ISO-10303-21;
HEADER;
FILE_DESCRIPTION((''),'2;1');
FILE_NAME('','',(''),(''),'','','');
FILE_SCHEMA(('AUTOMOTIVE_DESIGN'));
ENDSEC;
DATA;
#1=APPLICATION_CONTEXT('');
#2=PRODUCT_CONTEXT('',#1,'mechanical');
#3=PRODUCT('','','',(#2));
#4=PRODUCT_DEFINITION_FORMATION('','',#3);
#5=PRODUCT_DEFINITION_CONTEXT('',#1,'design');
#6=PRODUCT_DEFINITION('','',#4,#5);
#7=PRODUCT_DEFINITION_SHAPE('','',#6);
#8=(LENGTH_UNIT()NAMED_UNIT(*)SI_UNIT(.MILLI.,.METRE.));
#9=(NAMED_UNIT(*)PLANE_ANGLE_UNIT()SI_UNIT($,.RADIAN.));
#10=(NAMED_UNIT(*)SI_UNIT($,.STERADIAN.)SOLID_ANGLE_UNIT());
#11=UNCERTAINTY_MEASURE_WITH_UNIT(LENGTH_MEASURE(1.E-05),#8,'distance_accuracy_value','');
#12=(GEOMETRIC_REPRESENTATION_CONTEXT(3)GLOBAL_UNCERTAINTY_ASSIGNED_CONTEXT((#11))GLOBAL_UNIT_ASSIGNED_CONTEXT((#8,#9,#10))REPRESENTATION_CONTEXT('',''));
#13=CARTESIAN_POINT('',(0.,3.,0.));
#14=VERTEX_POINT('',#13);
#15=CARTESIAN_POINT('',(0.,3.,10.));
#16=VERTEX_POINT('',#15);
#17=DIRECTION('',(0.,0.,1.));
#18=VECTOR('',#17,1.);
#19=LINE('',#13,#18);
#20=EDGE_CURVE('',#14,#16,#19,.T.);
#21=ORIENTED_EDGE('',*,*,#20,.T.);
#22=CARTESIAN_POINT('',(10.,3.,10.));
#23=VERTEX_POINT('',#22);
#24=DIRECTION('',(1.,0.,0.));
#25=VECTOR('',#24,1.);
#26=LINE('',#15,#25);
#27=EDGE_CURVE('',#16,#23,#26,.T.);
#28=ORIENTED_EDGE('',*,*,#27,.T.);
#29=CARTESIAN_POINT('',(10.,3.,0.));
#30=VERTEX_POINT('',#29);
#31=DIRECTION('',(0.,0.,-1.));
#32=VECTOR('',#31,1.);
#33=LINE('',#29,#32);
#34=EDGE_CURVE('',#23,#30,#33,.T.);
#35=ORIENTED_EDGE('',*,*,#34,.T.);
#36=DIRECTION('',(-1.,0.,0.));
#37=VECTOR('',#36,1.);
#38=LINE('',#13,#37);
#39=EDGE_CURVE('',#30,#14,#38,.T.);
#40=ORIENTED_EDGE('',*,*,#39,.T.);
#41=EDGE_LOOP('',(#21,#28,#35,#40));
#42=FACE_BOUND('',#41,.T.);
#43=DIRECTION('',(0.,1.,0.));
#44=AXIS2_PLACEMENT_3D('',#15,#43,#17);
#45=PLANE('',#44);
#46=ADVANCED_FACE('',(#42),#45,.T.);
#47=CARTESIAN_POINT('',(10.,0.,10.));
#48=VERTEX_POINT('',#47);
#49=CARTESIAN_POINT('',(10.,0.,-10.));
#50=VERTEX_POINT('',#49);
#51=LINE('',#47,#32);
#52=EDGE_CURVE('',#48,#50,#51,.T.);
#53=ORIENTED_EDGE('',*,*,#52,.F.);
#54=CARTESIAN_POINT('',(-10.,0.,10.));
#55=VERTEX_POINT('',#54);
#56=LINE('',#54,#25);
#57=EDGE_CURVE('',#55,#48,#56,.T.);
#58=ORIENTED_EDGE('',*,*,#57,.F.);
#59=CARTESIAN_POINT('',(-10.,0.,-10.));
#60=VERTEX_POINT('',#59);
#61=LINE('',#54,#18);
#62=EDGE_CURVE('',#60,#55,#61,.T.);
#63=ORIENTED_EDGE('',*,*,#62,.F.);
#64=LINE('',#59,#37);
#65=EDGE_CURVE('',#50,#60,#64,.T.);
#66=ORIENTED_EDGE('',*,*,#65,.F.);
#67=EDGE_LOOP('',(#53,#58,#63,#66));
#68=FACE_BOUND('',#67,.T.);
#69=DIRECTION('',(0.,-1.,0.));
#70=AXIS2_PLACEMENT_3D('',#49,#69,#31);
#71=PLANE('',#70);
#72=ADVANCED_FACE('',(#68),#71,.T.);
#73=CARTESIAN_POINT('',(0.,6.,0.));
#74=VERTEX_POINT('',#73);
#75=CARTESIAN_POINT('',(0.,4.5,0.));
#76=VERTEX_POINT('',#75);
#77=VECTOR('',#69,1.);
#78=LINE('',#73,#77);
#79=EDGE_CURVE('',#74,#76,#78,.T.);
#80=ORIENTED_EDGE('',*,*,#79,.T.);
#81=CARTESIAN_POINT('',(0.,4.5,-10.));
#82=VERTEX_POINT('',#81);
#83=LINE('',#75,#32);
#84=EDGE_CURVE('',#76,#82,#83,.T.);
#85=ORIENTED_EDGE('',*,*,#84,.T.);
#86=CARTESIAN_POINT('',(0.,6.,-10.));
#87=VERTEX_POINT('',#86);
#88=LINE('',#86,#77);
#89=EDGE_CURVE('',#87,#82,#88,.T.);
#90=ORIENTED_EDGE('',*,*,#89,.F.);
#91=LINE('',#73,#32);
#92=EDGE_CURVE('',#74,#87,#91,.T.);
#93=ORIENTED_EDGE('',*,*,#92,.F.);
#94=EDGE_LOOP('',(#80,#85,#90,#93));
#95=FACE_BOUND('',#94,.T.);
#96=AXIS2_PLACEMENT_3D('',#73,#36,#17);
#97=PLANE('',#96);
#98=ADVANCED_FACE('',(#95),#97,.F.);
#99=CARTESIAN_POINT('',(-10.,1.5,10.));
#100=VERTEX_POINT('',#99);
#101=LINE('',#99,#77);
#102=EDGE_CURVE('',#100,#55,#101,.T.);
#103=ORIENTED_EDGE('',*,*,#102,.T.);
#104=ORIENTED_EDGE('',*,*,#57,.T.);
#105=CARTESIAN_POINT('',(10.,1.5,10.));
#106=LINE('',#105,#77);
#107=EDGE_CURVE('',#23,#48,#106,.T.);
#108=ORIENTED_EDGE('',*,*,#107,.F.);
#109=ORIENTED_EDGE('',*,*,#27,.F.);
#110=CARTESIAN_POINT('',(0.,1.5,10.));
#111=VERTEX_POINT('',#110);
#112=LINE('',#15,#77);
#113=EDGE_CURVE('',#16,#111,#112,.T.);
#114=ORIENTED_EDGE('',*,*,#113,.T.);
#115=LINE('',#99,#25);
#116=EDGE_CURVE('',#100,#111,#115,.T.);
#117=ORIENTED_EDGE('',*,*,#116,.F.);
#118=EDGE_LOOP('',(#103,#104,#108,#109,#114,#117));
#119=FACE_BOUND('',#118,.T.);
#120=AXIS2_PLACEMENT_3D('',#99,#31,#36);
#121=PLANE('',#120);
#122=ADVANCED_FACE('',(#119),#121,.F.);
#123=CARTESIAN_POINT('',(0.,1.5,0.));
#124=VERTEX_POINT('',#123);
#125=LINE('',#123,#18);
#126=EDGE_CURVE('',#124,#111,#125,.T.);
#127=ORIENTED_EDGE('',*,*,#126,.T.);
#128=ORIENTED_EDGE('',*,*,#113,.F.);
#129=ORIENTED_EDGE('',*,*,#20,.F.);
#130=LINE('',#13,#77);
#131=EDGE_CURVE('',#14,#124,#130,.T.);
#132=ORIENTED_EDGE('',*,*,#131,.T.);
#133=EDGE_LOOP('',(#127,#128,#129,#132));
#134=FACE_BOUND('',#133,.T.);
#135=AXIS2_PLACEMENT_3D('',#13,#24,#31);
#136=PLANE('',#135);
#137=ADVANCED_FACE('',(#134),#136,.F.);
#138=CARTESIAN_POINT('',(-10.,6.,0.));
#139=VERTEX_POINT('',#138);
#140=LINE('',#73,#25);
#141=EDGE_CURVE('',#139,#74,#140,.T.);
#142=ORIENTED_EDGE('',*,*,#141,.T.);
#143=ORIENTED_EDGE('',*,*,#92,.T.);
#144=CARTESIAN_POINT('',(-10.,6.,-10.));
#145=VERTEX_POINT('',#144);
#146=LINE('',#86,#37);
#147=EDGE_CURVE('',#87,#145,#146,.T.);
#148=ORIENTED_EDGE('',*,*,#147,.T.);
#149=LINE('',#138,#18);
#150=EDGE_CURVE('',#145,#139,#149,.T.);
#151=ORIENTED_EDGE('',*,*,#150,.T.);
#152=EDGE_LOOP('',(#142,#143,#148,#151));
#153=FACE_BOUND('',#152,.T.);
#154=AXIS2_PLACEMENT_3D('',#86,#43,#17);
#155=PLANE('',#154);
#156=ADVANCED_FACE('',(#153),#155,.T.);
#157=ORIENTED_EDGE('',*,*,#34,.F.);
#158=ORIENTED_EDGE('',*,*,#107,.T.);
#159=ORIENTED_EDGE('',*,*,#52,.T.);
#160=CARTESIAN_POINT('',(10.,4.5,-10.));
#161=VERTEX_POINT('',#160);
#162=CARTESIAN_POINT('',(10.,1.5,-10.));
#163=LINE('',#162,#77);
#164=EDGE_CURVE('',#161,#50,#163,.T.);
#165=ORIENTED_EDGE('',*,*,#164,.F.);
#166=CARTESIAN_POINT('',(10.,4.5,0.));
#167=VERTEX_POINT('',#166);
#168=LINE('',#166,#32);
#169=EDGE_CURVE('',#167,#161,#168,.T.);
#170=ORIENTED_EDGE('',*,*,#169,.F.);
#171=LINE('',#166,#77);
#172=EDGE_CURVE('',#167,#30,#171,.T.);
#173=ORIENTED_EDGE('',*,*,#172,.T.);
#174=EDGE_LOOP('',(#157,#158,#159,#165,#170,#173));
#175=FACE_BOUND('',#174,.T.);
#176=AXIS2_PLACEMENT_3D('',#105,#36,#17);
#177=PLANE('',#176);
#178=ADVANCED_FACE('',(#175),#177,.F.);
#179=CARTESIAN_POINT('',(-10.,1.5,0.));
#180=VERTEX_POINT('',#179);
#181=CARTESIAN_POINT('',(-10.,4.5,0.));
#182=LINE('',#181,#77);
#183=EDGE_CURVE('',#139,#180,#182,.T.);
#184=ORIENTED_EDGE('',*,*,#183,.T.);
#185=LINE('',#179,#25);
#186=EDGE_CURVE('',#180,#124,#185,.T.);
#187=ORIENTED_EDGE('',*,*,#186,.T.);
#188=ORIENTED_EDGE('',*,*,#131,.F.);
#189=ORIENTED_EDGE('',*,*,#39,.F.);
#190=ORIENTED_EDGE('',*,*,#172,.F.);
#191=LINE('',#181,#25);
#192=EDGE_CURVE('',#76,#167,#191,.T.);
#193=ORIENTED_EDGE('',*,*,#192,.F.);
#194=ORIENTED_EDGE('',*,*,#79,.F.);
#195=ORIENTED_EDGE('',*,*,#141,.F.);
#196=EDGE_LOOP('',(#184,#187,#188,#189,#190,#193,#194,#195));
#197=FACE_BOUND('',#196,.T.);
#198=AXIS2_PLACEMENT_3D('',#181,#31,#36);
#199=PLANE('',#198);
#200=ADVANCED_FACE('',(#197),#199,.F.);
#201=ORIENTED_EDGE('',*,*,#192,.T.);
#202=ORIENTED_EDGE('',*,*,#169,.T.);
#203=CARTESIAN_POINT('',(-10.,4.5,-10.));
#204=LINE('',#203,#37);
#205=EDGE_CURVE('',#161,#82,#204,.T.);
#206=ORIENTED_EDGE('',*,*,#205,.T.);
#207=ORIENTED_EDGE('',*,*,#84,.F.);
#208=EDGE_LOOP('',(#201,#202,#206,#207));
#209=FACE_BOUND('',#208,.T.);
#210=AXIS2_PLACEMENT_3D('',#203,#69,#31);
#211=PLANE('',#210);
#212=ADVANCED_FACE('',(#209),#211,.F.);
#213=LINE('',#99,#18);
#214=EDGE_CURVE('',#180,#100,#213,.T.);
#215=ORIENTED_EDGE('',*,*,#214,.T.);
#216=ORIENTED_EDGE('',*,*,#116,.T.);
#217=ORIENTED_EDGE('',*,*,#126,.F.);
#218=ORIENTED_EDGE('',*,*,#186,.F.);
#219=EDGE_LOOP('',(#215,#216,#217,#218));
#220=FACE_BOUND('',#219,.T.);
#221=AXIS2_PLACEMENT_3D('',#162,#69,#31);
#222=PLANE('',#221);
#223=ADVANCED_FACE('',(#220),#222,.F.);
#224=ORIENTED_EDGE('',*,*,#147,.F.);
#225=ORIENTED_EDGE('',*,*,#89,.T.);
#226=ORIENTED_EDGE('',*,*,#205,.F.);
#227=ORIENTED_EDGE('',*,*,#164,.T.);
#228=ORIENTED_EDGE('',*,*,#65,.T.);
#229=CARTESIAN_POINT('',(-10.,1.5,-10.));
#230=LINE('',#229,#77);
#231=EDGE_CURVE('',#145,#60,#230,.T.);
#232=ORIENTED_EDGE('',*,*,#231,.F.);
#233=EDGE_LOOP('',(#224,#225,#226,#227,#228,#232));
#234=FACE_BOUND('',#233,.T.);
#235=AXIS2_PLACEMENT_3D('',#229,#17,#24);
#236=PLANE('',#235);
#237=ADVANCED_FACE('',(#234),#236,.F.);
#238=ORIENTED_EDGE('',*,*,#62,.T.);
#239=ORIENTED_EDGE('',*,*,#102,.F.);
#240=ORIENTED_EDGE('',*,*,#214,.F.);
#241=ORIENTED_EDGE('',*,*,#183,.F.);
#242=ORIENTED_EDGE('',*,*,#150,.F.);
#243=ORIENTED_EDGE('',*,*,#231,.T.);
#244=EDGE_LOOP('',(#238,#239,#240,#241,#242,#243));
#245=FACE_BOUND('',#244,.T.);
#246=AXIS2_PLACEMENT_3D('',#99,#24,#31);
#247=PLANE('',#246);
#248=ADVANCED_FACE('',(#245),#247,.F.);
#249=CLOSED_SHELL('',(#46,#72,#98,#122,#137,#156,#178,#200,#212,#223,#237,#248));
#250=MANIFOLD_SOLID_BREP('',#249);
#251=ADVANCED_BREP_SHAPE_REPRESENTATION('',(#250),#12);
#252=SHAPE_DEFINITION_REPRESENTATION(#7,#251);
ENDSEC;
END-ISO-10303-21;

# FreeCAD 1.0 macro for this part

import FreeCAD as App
import Part
import Sketcher
Q = App.Units.Quantity


def add_polygon(sketch, points):
    """Adds a closed chain of lines whose ends are joined by coincident constraints."""
    first, n = sketch.GeometryCount, len(points)
    for a, b in zip(points, points[1:] + points[:1]):
        sketch.addGeometry(Part.LineSegment(App.Vector(*a, 0), App.Vector(*b, 0)), False)
    for i in range(n):
        sketch.addConstraint(Sketcher.Constraint("Coincident", first + i, 2, first + (i + 1) % n, 1))

doc = App.newDocument("Part")
params = doc.addObject("Spreadsheet::Sheet", "Params")
for row, (alias, value) in enumerate([
    ("sketch1_width", "20 mm"),
    ("pad1_length", "1.5 mm"),
    ("sketch2_width", "20 mm"),
    ("sketch2_height", "10 mm"),
    ("pad2_length", "3 mm"),
    ("sketch3_width", "10 mm"),
    ("pad3_length", "1.5 mm"),
    ("sketch4_width", "10 mm"),
    ("pad4_length", "1.5 mm"),
], start=1):
    params.set(f"A{row}", alias)
    params.set(f"B{row}", "=" + value)
    params.setAlias(f"B{row}", alias)

body = doc.addObject("PartDesign::Body", "Body")

# Sketch on XZ plane
sketch1 = body.newObject("Sketcher::SketchObject", "Sketch")
sketch1.AttachmentSupport = (doc.getObject("XZ_Plane"), [""])
sketch1.MapMode = "FlatFace"
add_polygon(sketch1, [(-10, -10), (-10, 10), (10, 10), (10, -10)])  # lines 0-3
sketch1.addConstraint([
    Sketcher.Constraint("Vertical", 0),
    Sketcher.Constraint("Horizontal", 1),
    Sketcher.Constraint("Vertical", 2),
    Sketcher.Constraint("Horizontal", 3),
    Sketcher.Constraint("Symmetric", 0, 2, 2, 2, -1, 1),
    Sketcher.Constraint("Equal", 3, 0),
    Sketcher.Constraint("DistanceX", 1, 1, 1, 2, Q("20 mm")),
])
sketch1.setExpression("Constraints[10]", "Params.sketch1_width")
pad1 = body.newObject("PartDesign::Pad", "Pad")
pad1.Profile = sketch1
pad1.setExpression("Length", "Params.pad1_length")
pad1.Reversed = True

# Sketch on XZ plane
sketch2 = body.newObject("Sketcher::SketchObject", "Sketch001")
sketch2.AttachmentSupport = (doc.getObject("XZ_Plane"), [""])
sketch2.MapMode = "FlatFace"
sketch2.AttachmentOffset = App.Placement(App.Vector(0, 0, -1.5), App.Rotation())
add_polygon(sketch2, [(-10, -10), (-10, 0), (10, 0), (10, -10)])  # lines 0-3
sketch2.addConstraint([
    Sketcher.Constraint("Vertical", 0),
    Sketcher.Constraint("Horizontal", 1),
    Sketcher.Constraint("Vertical", 2),
    Sketcher.Constraint("Horizontal", 3),
    Sketcher.Constraint("Symmetric", 0, 2, 1, 2, -1, 1),
    Sketcher.Constraint("DistanceX", 1, 1, 1, 2, Q("20 mm")),
    Sketcher.Constraint("DistanceY", 0, 1, 0, 2, Q("10 mm")),
])
sketch2.setExpression("Constraints[9]", "Params.sketch2_width")
sketch2.setExpression("Constraints[10]", "Params.sketch2_height")
pad2 = body.newObject("PartDesign::Pad", "Pad001")
pad2.Profile = sketch2
pad2.setExpression("Length", "Params.pad2_length")
pad2.Reversed = True

# Sketch on XZ plane
sketch3 = body.newObject("Sketcher::SketchObject", "Sketch002")
sketch3.AttachmentSupport = (doc.getObject("XZ_Plane"), [""])
sketch3.MapMode = "FlatFace"
sketch3.AttachmentOffset = App.Placement(App.Vector(0, 0, -1.5), App.Rotation())
add_polygon(sketch3, [(0, 0), (0, 10), (10, 10), (10, 0)])  # lines 0-3
sketch3.addConstraint([
    Sketcher.Constraint("Vertical", 0),
    Sketcher.Constraint("Horizontal", 1),
    Sketcher.Constraint("Vertical", 2),
    Sketcher.Constraint("Horizontal", 3),
    Sketcher.Constraint("Coincident", 3, 2, -1, 1),
    Sketcher.Constraint("Equal", 3, 0),
    Sketcher.Constraint("DistanceX", 1, 1, 1, 2, Q("10 mm")),
])
sketch3.setExpression("Constraints[10]", "Params.sketch3_width")
pad3 = body.newObject("PartDesign::Pad", "Pad002")
pad3.Profile = sketch3
pad3.setExpression("Length", "Params.pad3_length")
pad3.Reversed = True

# Sketch on XZ plane
sketch4 = body.newObject("Sketcher::SketchObject", "Sketch003")
sketch4.AttachmentSupport = (doc.getObject("XZ_Plane"), [""])
sketch4.MapMode = "FlatFace"
sketch4.AttachmentOffset = App.Placement(App.Vector(0, 0, -4.5), App.Rotation())
add_polygon(sketch4, [(0, 0), (0, -10), (-10, -10), (-10, 0)])  # lines 0-3
sketch4.addConstraint([
    Sketcher.Constraint("Vertical", 0),
    Sketcher.Constraint("Horizontal", 1),
    Sketcher.Constraint("Vertical", 2),
    Sketcher.Constraint("Horizontal", 3),
    Sketcher.Constraint("Coincident", 3, 2, -1, 1),
    Sketcher.Constraint("Equal", 3, 0),
    Sketcher.Constraint("DistanceX", 1, 2, 1, 1, Q("10 mm")),
])
sketch4.setExpression("Constraints[10]", "Params.sketch4_width")
pad4 = body.newObject("PartDesign::Pad", "Pad003")
pad4.Profile = sketch4
pad4.setExpression("Length", "Params.pad4_length")
pad4.Reversed = True

doc.recompute()
